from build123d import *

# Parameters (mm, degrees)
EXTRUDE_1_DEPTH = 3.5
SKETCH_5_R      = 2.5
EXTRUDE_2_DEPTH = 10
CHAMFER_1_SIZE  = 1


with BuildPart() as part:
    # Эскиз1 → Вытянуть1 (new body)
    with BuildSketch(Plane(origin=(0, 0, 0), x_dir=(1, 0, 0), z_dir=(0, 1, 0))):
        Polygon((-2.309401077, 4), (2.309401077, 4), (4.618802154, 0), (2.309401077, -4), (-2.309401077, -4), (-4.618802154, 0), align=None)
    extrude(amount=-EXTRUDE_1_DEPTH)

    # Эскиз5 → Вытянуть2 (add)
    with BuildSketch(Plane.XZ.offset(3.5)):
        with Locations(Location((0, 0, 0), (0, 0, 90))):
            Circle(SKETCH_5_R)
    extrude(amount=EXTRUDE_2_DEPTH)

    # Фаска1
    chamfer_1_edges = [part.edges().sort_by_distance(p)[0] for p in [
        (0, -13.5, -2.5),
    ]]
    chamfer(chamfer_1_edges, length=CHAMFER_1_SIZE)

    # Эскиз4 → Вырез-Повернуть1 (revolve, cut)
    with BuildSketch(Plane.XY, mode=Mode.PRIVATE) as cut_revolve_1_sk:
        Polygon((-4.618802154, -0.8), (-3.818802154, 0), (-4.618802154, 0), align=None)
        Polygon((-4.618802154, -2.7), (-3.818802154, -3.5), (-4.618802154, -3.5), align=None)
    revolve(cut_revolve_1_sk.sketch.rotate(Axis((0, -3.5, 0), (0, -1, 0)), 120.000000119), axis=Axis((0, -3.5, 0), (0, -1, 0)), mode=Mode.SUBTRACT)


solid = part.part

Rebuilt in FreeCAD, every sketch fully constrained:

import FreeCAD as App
import Part
import Sketcher

V = App.Vector
Q = App.Units.Quantity


def edges_at(feature, points):
    """Names of the edges that pass closest to the given points."""
    edges = feature.Shape.Edges
    near = lambda p: min(range(len(edges)), key=lambda i: edges[i].distToShape(Part.Vertex(*p))[0])
    return sorted({f"Edge{near(p) + 1}" for p in points})


def add_polygon(sketch, points):
    """Adds a closed chain of lines whose ends are joined by coincident constraints."""
    first, n = sketch.GeometryCount, len(points)
    for a, b in zip(points, points[1:] + points[:1]):
        sketch.addGeometry(Part.LineSegment(App.Vector(*a, 0), App.Vector(*b, 0)), False)
    for i in range(n):
        sketch.addConstraint(Sketcher.Constraint("Coincident", first + i, 2, first + (i + 1) % n, 1))

doc = App.newDocument("Part")
body = doc.addObject("PartDesign::Body", "Body")

sketch1 = doc.addObject("Sketcher::SketchObject", "Sketch")
body.addObject(sketch1)
sketch1.AttachmentSupport = (doc.XZ_Plane, [""])
sketch1.MapMode = "FlatFace"
add_polygon(sketch1, [(2.309401, -4), (-2.309401, -4), (-4.618802, 0), (-2.309401, 4), (2.309401, 4), (4.618802, 0)])
sketch1.addConstraint(Sketcher.Constraint("Horizontal", 0))
sketch1.addConstraint(Sketcher.Constraint("Horizontal", 3))
sketch1.addConstraint(Sketcher.Constraint("Symmetric", 0, 2, 3, 2, -1, 1))
sketch1.addConstraint(Sketcher.Constraint("Symmetric", 1, 2, 4, 2, -1, 1))
sketch1.addConstraint(Sketcher.Constraint("PointOnObject", 1, 2, -1))
sketch1.addConstraint(Sketcher.Constraint("Parallel", 2, 5))
sketch1.addConstraint(Sketcher.Constraint("Vertical", 0, 2, 2, 2))
sketch1.addConstraint(Sketcher.Constraint("Angle", 1, Q("120 deg")))
sketch1.addConstraint(Sketcher.Constraint("DistanceY", 0, 2, -1, 1, Q("4 mm")))
sketch1.addConstraint(Sketcher.Constraint("DistanceX", 0, 2, -1, 1, Q("2.309401 mm")))
pad1 = doc.addObject("PartDesign::Pad", "Pad")
body.addObject(pad1)
pad1.Profile = sketch1
pad1.Length = 3.5

sketch2 = doc.addObject("Sketcher::SketchObject", "Sketch001")
body.addObject(sketch2)
sketch2.AttachmentSupport = (doc.XZ_Plane, [""])
sketch2.MapMode = "FlatFace"
sketch2.AttachmentOffset = App.Placement(V(0, 0, 3.5), App.Rotation())
sketch2.addGeometry(Part.Circle(V(0, 0, 0), V(0, 0, 1), 2.5), False)
sketch2.addConstraint(Sketcher.Constraint("Coincident", 0, 3, -1, 1))
sketch2.addConstraint(Sketcher.Constraint("Diameter", 0, Q("5 mm")))
pad2 = doc.addObject("PartDesign::Pad", "Pad001")
body.addObject(pad2)
pad2.Profile = sketch2
pad2.Length = 10
doc.recompute()

chamfer = doc.addObject("PartDesign::Chamfer", "Chamfer")
body.addObject(chamfer)
chamfer.Base = (pad2, edges_at(pad2, [(0, -13.5, -2.5)]))
chamfer.Size = 1

sketch3 = doc.addObject("Sketcher::SketchObject", "Sketch002")
body.addObject(sketch3)
sketch3.AttachmentSupport = (doc.XY_Plane, [""])
sketch3.MapMode = "FlatFace"
add_polygon(sketch3, [(-4.618802, -0.8), (-3.818802, 0), (-4.618802, 0)])
add_polygon(sketch3, [(-3.818802, -3.5), (-4.618802, -2.7), (-4.618802, -3.5)])
sketch3.addConstraint(Sketcher.Constraint("Horizontal", 1))
sketch3.addConstraint(Sketcher.Constraint("Vertical", 2))
sketch3.addConstraint(Sketcher.Constraint("Vertical", 4))
sketch3.addConstraint(Sketcher.Constraint("Horizontal", 5))
sketch3.addConstraint(Sketcher.Constraint("PointOnObject", 0, 2, -1))
sketch3.addConstraint(Sketcher.Constraint("Perpendicular", 0, 3))
sketch3.addConstraint(Sketcher.Constraint("Vertical", 2, 2, 3, 2))
sketch3.addConstraint(Sketcher.Constraint("Vertical", 0, 2, 5, 2))
sketch3.addConstraint(Sketcher.Constraint("Equal", 5, 2))
sketch3.addConstraint(Sketcher.Constraint("DistanceX", 1, 2, 1, 1, Q("0.8 mm")))
sketch3.addConstraint(Sketcher.Constraint("DistanceY", 3, 2, -1, 1, Q("2.7 mm")))
sketch3.addConstraint(Sketcher.Constraint("DistanceX", 0, 2, -1, 1, Q("3.818802 mm")))
groove = doc.addObject("PartDesign::Groove", "Groove")
body.addObject(groove)
groove.Profile = sketch3
groove.ReferenceAxis = (sketch3, ["V_Axis"])
groove.Angle = 360

doc.recompute()
